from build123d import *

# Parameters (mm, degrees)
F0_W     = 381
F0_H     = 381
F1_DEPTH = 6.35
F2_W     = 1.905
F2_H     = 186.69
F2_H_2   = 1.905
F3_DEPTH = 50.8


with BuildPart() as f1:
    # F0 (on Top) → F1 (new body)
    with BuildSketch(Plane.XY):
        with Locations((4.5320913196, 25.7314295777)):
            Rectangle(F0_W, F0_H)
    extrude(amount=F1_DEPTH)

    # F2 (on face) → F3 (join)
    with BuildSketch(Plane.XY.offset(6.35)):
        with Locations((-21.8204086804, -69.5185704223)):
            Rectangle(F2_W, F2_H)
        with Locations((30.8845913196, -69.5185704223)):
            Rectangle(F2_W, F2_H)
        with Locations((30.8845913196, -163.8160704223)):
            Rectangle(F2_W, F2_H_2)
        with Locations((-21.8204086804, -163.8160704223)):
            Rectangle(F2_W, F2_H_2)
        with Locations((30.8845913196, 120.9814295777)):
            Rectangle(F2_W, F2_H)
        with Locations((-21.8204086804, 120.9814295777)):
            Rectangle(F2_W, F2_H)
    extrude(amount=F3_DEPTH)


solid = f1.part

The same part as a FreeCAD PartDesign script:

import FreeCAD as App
import Part
import Sketcher
Q = App.Units.Quantity

doc = App.newDocument("Part")
body = doc.addObject("PartDesign::Body", "Body")

# Sketch on XY plane
sketch1 = doc.addObject("Sketcher::SketchObject", "Sketch")
body.addObject(sketch1)
sketch1.AttachmentSupport = (doc.XY_Plane, [""])
sketch1.MapMode = "FlatFace"
sketch1.addGeometry([
    Part.LineSegment(App.Vector(-186, 216, 0), App.Vector(-186, -165, 0)),
    Part.LineSegment(App.Vector(-186, -165, 0), App.Vector(195, -165, 0)),
    Part.LineSegment(App.Vector(195, -165, 0), App.Vector(195, 216, 0)),
    Part.LineSegment(App.Vector(195, 216, 0), App.Vector(-186, 216, 0)),
], False)
sketch1.addConstraint([
    Sketcher.Constraint("Coincident", 0, 2, 1, 1),
    Sketcher.Constraint("Coincident", 1, 2, 2, 1),
    Sketcher.Constraint("Coincident", 2, 2, 3, 1),
    Sketcher.Constraint("Coincident", 3, 2, 0, 1),
    Sketcher.Constraint("Vertical", 0),
    Sketcher.Constraint("Horizontal", 1),
    Sketcher.Constraint("Vertical", 2),
    Sketcher.Constraint("Horizontal", 3),
    Sketcher.Constraint("Equal", 3, 0),
    Sketcher.Constraint("DistanceX", 1, 1, 1, 2, Q("15 in")),
    Sketcher.Constraint("DistanceX", 0, 2, -1, 1, 185.967909),
    Sketcher.Constraint("DistanceY", 0, 2, -1, 1, 164.76857),
])
pad1 = doc.addObject("PartDesign::Pad", "Pad")
body.addObject(pad1)
pad1.Profile = sketch1
pad1.Length = Q("0.25 in")

# Sketch on XY plane
sketch2 = doc.addObject("Sketcher::SketchObject", "Sketch001")
body.addObject(sketch2)
sketch2.AttachmentSupport = (doc.XY_Plane, [""])
sketch2.MapMode = "FlatFace"
sketch2.AttachmentOffset = App.Placement(App.Vector(0, 0, 0.25 * 25.4), App.Rotation())
sketch2.addGeometry([
    Part.LineSegment(App.Vector(-22.8, 23.8, 0), App.Vector(-22.8, -164.8, 0)),  # 0
    Part.LineSegment(App.Vector(-22.8, -164.8, 0), App.Vector(-20.9, -164.8, 0)),  # 1
    Part.LineSegment(App.Vector(-20.9, -164.8, 0), App.Vector(-20.9, 23.8, 0)),  # 2
    Part.LineSegment(App.Vector(-20.9, 23.8, 0), App.Vector(-22.8, 23.8, 0)),  # 3
    Part.LineSegment(App.Vector(29.9, 23.8, 0), App.Vector(29.9, -164.8, 0)),  # 4
    Part.LineSegment(App.Vector(29.9, -164.8, 0), App.Vector(31.8, -164.8, 0)),  # 5
    Part.LineSegment(App.Vector(31.8, -164.8, 0), App.Vector(31.8, 23.8, 0)),  # 6
    Part.LineSegment(App.Vector(31.8, 23.8, 0), App.Vector(29.9, 23.8, 0)),  # 7
    Part.LineSegment(App.Vector(29.9, 214.3, 0), App.Vector(29.9, 27.6, 0)),  # 8
    Part.LineSegment(App.Vector(29.9, 27.6, 0), App.Vector(31.8, 27.6, 0)),  # 9
    Part.LineSegment(App.Vector(31.8, 27.6, 0), App.Vector(31.8, 214.3, 0)),  # 10
    Part.LineSegment(App.Vector(31.8, 214.3, 0), App.Vector(29.9, 214.3, 0)),  # 11
    Part.LineSegment(App.Vector(-22.8, 214.3, 0), App.Vector(-22.8, 27.6, 0)),  # 12
    Part.LineSegment(App.Vector(-22.8, 27.6, 0), App.Vector(-20.9, 27.6, 0)),  # 13
    Part.LineSegment(App.Vector(-20.9, 27.6, 0), App.Vector(-20.9, 214.3, 0)),  # 14
    Part.LineSegment(App.Vector(-20.9, 214.3, 0), App.Vector(-22.8, 214.3, 0)),  # 15
], False)
sketch2.addConstraint([
    Sketcher.Constraint("Coincident", 0, 2, 1, 1),
    Sketcher.Constraint("Coincident", 1, 2, 2, 1),
    Sketcher.Constraint("Coincident", 2, 2, 3, 1),
    Sketcher.Constraint("Coincident", 3, 2, 0, 1),
    Sketcher.Constraint("Coincident", 4, 2, 5, 1),
    Sketcher.Constraint("Coincident", 5, 2, 6, 1),
    Sketcher.Constraint("Coincident", 6, 2, 7, 1),
    Sketcher.Constraint("Coincident", 7, 2, 4, 1),
    Sketcher.Constraint("Coincident", 8, 2, 9, 1),
    Sketcher.Constraint("Coincident", 9, 2, 10, 1),
    Sketcher.Constraint("Coincident", 10, 2, 11, 1),
    Sketcher.Constraint("Coincident", 11, 2, 8, 1),
    Sketcher.Constraint("Coincident", 12, 2, 13, 1),
    Sketcher.Constraint("Coincident", 13, 2, 14, 1),
    Sketcher.Constraint("Coincident", 14, 2, 15, 1),
    Sketcher.Constraint("Coincident", 15, 2, 12, 1),
    Sketcher.Constraint("Vertical", 0),
    Sketcher.Constraint("Horizontal", 1),
    Sketcher.Constraint("Vertical", 2),
    Sketcher.Constraint("Horizontal", 3),
    Sketcher.Constraint("Vertical", 4),
    Sketcher.Constraint("Horizontal", 5),
    Sketcher.Constraint("Vertical", 6),
    Sketcher.Constraint("Horizontal", 7),
    Sketcher.Constraint("Vertical", 8),
    Sketcher.Constraint("Horizontal", 9),
    Sketcher.Constraint("Vertical", 10),
    Sketcher.Constraint("Horizontal", 11),
    Sketcher.Constraint("Vertical", 12),
    Sketcher.Constraint("Horizontal", 13),
    Sketcher.Constraint("Vertical", 14),
    Sketcher.Constraint("Horizontal", 15),
    Sketcher.Constraint("Horizontal", 1, 2, 4, 2),
    Sketcher.Constraint("Horizontal", 3, 2, 6, 2),
    Sketcher.Constraint("Horizontal", 9, 2, 12, 2),
    Sketcher.Constraint("Horizontal", 11, 2, 14, 2),
    Sketcher.Constraint("Vertical", 7, 2, 8, 2),
    Sketcher.Constraint("Vertical", 6, 2, 9, 2),
    Sketcher.Constraint("Vertical", 3, 2, 12, 2),
    Sketcher.Constraint("Vertical", 2, 2, 13, 2),
    Sketcher.Constraint("Equal", 3, 5),
    Sketcher.Constraint("DistanceX", 1, 2, 4, 2, Q("2 in")),
    Sketcher.Constraint("DistanceY", 8, 2, 8, 1, Q("7.35 in")),
    Sketcher.Constraint("DistanceY", 6, 2, 10, 2, Q("7.5 in")),
    Sketcher.Constraint("DistanceX", 1, 1, 1, 2, Q("0.075 in")),
    Sketcher.Constraint("DistanceY", 0, 2, 0, 1, Q("7.425 in")),
    Sketcher.Constraint("DistanceX", 0, 2, -1, 1, 22.772909),
    Sketcher.Constraint("DistanceY", 0, 2, -1, 1, 164.76857),
])
pad2 = doc.addObject("PartDesign::Pad", "Pad001")
body.addObject(pad2)
pad2.Profile = sketch2
pad2.Length = Q("2 in")

doc.recompute()
